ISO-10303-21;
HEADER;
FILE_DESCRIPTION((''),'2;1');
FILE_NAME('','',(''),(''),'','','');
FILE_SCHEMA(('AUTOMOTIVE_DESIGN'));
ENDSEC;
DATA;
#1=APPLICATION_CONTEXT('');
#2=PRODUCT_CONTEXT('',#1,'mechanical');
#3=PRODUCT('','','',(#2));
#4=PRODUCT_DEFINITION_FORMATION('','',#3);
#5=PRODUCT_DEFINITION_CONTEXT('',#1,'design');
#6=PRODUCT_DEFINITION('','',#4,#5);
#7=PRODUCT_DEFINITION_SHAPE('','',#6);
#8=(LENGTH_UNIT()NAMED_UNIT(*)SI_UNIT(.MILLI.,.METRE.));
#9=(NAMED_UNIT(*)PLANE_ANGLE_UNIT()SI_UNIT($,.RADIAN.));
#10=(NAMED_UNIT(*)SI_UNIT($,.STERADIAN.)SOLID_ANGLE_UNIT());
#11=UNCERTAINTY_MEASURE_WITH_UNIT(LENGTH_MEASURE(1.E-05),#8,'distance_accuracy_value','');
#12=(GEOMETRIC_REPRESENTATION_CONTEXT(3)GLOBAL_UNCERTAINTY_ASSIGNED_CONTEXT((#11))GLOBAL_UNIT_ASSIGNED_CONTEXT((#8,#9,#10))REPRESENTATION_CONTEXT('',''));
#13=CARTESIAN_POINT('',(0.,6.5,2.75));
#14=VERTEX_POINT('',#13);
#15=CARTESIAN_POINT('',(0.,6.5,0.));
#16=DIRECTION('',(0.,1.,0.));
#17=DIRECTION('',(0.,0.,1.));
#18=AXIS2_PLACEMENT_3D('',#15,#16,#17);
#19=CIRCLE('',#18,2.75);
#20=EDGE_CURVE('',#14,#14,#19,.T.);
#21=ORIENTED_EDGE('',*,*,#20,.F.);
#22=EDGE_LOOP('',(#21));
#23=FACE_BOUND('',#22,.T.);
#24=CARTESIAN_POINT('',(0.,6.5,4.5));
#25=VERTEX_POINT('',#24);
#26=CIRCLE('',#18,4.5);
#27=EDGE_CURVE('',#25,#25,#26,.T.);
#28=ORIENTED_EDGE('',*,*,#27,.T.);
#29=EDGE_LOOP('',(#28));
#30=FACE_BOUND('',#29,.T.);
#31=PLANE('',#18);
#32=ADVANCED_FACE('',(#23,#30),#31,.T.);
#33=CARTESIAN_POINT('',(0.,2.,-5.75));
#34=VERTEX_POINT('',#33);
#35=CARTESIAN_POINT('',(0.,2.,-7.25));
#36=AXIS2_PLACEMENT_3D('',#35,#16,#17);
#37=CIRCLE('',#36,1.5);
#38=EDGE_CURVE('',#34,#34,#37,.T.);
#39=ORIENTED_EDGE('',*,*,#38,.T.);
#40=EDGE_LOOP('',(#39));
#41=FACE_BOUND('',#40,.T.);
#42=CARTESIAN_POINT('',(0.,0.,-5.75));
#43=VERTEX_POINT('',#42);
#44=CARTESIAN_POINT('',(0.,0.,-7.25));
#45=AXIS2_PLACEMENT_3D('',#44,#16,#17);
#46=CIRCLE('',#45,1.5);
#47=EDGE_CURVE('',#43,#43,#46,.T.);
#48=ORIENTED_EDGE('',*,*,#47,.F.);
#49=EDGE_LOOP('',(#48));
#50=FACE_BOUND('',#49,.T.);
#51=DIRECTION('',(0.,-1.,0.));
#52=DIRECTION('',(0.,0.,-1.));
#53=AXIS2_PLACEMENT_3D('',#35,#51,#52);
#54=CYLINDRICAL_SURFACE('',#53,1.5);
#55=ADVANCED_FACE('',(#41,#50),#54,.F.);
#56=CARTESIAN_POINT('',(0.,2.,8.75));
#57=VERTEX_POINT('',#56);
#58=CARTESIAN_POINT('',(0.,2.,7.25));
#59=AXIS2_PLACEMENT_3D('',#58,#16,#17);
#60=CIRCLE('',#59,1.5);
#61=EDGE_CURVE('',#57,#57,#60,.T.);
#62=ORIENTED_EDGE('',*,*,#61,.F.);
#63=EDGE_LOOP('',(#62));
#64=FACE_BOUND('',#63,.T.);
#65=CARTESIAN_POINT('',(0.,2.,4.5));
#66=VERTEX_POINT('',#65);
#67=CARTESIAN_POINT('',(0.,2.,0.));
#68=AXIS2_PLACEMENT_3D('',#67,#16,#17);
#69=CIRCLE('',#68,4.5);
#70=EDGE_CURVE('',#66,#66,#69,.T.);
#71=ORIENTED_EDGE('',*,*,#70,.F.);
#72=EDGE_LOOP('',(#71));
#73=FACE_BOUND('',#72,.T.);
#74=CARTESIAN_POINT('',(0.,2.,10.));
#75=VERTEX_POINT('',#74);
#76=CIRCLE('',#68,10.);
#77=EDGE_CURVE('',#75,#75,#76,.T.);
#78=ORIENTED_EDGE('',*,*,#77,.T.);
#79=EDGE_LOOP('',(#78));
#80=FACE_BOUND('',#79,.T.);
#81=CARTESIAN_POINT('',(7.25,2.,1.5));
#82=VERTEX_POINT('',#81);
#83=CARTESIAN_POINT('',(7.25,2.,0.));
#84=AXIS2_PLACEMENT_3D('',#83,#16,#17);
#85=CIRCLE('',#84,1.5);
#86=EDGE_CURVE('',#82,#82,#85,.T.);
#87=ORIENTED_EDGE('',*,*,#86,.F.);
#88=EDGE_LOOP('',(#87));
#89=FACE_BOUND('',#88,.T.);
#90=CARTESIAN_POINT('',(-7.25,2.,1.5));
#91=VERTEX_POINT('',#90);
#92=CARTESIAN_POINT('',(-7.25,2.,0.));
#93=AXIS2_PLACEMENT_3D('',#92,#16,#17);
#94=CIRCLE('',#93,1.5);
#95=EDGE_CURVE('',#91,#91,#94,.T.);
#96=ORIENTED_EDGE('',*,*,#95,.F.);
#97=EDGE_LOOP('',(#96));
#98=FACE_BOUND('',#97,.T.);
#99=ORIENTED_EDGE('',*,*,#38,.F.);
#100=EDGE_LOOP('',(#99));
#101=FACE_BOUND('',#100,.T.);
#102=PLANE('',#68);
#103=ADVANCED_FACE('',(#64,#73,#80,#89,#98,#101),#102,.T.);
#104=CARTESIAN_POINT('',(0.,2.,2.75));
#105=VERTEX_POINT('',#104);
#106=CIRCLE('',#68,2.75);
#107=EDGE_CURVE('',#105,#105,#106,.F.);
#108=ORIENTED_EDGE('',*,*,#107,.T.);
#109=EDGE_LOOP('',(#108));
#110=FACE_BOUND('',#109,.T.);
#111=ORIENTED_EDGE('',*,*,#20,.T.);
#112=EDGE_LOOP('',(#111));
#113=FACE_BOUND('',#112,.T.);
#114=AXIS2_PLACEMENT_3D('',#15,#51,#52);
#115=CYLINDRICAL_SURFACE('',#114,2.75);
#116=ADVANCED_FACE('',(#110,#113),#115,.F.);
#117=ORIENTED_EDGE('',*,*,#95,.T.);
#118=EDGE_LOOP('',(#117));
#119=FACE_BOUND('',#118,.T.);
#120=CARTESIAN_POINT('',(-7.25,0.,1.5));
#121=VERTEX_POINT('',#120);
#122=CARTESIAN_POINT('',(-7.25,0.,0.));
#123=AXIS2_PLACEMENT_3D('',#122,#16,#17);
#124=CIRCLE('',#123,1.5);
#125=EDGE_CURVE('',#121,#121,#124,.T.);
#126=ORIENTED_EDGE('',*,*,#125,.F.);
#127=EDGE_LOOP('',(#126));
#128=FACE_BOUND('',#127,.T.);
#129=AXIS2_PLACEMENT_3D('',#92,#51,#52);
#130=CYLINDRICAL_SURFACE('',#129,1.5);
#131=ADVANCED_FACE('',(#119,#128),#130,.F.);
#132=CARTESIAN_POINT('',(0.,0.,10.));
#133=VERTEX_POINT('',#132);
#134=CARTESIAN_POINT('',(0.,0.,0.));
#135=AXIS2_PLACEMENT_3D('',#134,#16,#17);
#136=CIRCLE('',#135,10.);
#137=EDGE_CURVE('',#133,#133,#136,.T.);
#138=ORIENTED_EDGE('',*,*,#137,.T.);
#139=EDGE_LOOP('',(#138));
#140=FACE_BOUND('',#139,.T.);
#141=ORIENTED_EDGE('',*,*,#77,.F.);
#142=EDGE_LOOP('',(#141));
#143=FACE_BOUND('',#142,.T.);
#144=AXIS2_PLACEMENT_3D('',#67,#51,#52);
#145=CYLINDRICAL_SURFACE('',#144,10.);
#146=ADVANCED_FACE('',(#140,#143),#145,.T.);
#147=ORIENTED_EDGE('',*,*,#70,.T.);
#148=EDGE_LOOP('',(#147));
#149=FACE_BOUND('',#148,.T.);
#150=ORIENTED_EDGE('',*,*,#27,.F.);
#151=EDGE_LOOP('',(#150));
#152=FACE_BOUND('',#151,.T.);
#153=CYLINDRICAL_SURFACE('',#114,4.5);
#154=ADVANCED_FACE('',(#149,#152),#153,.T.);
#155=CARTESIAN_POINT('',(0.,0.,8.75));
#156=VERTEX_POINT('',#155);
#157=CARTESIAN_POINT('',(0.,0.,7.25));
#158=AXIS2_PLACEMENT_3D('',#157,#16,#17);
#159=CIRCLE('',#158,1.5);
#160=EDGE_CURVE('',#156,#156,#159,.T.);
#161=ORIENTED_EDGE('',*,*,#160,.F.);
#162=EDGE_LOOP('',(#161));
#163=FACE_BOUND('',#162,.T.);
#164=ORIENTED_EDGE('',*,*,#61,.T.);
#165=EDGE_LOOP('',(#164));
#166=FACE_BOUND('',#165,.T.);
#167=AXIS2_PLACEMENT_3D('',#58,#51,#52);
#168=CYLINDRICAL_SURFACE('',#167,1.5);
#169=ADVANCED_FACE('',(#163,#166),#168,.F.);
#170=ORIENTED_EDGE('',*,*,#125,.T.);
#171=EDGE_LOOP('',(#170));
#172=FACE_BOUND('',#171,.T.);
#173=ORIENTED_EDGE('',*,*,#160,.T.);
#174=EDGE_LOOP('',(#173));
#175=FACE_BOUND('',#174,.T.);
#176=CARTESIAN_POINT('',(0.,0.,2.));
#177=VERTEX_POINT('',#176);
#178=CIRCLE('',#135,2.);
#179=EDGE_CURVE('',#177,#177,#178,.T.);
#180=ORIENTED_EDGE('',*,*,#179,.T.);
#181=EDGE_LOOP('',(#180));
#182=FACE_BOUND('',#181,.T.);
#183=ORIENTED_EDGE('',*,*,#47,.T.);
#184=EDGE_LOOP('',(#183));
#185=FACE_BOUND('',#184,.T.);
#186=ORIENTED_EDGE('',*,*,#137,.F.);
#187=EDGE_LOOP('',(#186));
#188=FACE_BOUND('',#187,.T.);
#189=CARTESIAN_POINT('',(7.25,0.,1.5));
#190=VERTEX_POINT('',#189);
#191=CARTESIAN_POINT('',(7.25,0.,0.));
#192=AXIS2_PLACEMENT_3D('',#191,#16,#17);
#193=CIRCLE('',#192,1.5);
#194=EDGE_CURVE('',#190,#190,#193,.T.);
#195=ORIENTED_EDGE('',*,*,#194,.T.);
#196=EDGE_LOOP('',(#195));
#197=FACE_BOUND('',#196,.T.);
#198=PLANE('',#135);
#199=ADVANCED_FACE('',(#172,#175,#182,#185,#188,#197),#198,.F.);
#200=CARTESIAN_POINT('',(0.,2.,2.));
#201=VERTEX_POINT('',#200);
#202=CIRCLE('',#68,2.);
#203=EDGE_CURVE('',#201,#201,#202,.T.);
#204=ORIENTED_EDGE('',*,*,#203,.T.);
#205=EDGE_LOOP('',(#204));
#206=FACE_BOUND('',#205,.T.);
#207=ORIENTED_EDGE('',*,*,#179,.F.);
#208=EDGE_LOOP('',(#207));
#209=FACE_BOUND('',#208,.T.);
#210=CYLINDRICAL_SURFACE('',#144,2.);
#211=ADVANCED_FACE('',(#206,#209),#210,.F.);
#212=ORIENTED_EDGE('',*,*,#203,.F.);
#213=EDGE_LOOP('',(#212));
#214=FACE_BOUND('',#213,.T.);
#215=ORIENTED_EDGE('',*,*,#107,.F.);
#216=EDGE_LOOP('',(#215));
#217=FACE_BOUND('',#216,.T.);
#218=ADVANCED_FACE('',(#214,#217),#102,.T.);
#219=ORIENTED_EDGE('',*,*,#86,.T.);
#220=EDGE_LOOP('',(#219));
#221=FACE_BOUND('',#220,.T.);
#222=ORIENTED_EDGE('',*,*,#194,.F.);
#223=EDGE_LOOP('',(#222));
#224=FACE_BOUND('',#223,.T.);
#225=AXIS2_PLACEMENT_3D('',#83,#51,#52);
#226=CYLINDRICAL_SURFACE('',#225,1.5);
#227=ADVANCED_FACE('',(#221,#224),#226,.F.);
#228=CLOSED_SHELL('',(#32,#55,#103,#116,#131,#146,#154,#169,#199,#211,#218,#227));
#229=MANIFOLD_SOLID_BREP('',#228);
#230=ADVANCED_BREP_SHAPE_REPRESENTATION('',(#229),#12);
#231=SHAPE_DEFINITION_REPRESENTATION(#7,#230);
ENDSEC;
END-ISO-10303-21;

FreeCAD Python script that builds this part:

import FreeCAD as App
import Part
import Sketcher

V = App.Vector

doc = App.newDocument("Part")
params = doc.addObject("Spreadsheet::Sheet", "Params")
for row, (alias, value) in enumerate([
    ("sketch1_diameter", "20 mm"),
    ("sketch1_diameter2", "3 mm"),
    ("sketch1_diameter3", "4 mm"),
    ("pad1_length", "2 mm"),
    ("sketch2_diameter", "9 mm"),
    ("sketch2_diameter2", "5.5 mm"),
    ("pad2_length", "4.5 mm"),
], start=1):
    params.set(f"A{row}", alias)
    params.set(f"B{row}", "=" + value)
    params.setAlias(f"B{row}", alias)

body = doc.addObject("PartDesign::Body", "Body")

sketch1 = body.newObject("Sketcher::SketchObject", "Sketch")
sketch1.AttachmentSupport = (doc.getObject("XZ_Plane"), [""])
sketch1.MapMode = "FlatFace"
sketch1.addGeometry([
    Part.Circle(V(0, 0, 0), V(0, 0, 1), 10),
    Part.Circle(V(0, 7.2, 0), V(0, 0, 1), 1.5),
    Part.Circle(V(-7.2, 0, 0), V(0, 0, 1), 1.5),
    Part.Circle(V(0, 0, 0), V(0, 0, 1), 2),
    Part.Circle(V(7.2, 0, 0), V(0, 0, 1), 1.5),
    Part.Circle(V(0, -7.2, 0), V(0, 0, 1), 1.5),
], False)
sketch1.addConstraint([
    Sketcher.Constraint("Coincident", 0, 3, -1, 1),
    Sketcher.Constraint("Coincident", 3, 3, -1, 1),
    Sketcher.Constraint("Equal", 1, 2),
    Sketcher.Constraint("Equal", 2, 4),
    Sketcher.Constraint("Equal", 4, 5),
    Sketcher.Constraint("Symmetric", 2, 3, 4, 3, -1, 1),
    Sketcher.Constraint("Symmetric", 1, 3, 5, 3, -1, 1),
    Sketcher.Constraint("PointOnObject", 1, 3, -2),
    Sketcher.Constraint("PointOnObject", 2, 3, -1),
    Sketcher.Constraint("Diameter", 0, 20.0),
    Sketcher.Constraint("Diameter", 1, 3.0),
    Sketcher.Constraint("Diameter", 3, 4.0),
    Sketcher.Constraint("DistanceX", 2, 3, 4, 3, 14.5),
    Sketcher.Constraint("DistanceY", 5, 3, 1, 3, 14.5),
])
sketch1.setExpression("Constraints[9]", "Params.sketch1_diameter")
sketch1.setExpression("Constraints[10]", "Params.sketch1_diameter2")
sketch1.setExpression("Constraints[11]", "Params.sketch1_diameter3")
pad1 = body.newObject("PartDesign::Pad", "Pad")
pad1.Profile = sketch1
pad1.setExpression("Length", "Params.pad1_length")
pad1.Reversed = True

sketch2 = body.newObject("Sketcher::SketchObject", "Sketch001")
sketch2.AttachmentSupport = (doc.getObject("XZ_Plane"), [""])
sketch2.MapMode = "FlatFace"
sketch2.AttachmentOffset = App.Placement(V(0, 0, -2), App.Rotation())
sketch2.addGeometry([
    Part.Circle(V(0, 0, 0), V(0, 0, 1), 4.5),
    Part.Circle(V(0, 0, 0), V(0, 0, 1), 2.8),
], False)
sketch2.addConstraint([
    Sketcher.Constraint("Coincident", 0, 3, -1, 1),
    Sketcher.Constraint("Coincident", 1, 3, -1, 1),
    Sketcher.Constraint("Diameter", 0, 9.0),
    Sketcher.Constraint("Diameter", 1, 5.5),
])
sketch2.setExpression("Constraints[2]", "Params.sketch2_diameter")
sketch2.setExpression("Constraints[3]", "Params.sketch2_diameter2")
pad2 = body.newObject("PartDesign::Pad", "Pad001")
pad2.Profile = sketch2
pad2.setExpression("Length", "Params.pad2_length")
pad2.Reversed = True

doc.recompute()
